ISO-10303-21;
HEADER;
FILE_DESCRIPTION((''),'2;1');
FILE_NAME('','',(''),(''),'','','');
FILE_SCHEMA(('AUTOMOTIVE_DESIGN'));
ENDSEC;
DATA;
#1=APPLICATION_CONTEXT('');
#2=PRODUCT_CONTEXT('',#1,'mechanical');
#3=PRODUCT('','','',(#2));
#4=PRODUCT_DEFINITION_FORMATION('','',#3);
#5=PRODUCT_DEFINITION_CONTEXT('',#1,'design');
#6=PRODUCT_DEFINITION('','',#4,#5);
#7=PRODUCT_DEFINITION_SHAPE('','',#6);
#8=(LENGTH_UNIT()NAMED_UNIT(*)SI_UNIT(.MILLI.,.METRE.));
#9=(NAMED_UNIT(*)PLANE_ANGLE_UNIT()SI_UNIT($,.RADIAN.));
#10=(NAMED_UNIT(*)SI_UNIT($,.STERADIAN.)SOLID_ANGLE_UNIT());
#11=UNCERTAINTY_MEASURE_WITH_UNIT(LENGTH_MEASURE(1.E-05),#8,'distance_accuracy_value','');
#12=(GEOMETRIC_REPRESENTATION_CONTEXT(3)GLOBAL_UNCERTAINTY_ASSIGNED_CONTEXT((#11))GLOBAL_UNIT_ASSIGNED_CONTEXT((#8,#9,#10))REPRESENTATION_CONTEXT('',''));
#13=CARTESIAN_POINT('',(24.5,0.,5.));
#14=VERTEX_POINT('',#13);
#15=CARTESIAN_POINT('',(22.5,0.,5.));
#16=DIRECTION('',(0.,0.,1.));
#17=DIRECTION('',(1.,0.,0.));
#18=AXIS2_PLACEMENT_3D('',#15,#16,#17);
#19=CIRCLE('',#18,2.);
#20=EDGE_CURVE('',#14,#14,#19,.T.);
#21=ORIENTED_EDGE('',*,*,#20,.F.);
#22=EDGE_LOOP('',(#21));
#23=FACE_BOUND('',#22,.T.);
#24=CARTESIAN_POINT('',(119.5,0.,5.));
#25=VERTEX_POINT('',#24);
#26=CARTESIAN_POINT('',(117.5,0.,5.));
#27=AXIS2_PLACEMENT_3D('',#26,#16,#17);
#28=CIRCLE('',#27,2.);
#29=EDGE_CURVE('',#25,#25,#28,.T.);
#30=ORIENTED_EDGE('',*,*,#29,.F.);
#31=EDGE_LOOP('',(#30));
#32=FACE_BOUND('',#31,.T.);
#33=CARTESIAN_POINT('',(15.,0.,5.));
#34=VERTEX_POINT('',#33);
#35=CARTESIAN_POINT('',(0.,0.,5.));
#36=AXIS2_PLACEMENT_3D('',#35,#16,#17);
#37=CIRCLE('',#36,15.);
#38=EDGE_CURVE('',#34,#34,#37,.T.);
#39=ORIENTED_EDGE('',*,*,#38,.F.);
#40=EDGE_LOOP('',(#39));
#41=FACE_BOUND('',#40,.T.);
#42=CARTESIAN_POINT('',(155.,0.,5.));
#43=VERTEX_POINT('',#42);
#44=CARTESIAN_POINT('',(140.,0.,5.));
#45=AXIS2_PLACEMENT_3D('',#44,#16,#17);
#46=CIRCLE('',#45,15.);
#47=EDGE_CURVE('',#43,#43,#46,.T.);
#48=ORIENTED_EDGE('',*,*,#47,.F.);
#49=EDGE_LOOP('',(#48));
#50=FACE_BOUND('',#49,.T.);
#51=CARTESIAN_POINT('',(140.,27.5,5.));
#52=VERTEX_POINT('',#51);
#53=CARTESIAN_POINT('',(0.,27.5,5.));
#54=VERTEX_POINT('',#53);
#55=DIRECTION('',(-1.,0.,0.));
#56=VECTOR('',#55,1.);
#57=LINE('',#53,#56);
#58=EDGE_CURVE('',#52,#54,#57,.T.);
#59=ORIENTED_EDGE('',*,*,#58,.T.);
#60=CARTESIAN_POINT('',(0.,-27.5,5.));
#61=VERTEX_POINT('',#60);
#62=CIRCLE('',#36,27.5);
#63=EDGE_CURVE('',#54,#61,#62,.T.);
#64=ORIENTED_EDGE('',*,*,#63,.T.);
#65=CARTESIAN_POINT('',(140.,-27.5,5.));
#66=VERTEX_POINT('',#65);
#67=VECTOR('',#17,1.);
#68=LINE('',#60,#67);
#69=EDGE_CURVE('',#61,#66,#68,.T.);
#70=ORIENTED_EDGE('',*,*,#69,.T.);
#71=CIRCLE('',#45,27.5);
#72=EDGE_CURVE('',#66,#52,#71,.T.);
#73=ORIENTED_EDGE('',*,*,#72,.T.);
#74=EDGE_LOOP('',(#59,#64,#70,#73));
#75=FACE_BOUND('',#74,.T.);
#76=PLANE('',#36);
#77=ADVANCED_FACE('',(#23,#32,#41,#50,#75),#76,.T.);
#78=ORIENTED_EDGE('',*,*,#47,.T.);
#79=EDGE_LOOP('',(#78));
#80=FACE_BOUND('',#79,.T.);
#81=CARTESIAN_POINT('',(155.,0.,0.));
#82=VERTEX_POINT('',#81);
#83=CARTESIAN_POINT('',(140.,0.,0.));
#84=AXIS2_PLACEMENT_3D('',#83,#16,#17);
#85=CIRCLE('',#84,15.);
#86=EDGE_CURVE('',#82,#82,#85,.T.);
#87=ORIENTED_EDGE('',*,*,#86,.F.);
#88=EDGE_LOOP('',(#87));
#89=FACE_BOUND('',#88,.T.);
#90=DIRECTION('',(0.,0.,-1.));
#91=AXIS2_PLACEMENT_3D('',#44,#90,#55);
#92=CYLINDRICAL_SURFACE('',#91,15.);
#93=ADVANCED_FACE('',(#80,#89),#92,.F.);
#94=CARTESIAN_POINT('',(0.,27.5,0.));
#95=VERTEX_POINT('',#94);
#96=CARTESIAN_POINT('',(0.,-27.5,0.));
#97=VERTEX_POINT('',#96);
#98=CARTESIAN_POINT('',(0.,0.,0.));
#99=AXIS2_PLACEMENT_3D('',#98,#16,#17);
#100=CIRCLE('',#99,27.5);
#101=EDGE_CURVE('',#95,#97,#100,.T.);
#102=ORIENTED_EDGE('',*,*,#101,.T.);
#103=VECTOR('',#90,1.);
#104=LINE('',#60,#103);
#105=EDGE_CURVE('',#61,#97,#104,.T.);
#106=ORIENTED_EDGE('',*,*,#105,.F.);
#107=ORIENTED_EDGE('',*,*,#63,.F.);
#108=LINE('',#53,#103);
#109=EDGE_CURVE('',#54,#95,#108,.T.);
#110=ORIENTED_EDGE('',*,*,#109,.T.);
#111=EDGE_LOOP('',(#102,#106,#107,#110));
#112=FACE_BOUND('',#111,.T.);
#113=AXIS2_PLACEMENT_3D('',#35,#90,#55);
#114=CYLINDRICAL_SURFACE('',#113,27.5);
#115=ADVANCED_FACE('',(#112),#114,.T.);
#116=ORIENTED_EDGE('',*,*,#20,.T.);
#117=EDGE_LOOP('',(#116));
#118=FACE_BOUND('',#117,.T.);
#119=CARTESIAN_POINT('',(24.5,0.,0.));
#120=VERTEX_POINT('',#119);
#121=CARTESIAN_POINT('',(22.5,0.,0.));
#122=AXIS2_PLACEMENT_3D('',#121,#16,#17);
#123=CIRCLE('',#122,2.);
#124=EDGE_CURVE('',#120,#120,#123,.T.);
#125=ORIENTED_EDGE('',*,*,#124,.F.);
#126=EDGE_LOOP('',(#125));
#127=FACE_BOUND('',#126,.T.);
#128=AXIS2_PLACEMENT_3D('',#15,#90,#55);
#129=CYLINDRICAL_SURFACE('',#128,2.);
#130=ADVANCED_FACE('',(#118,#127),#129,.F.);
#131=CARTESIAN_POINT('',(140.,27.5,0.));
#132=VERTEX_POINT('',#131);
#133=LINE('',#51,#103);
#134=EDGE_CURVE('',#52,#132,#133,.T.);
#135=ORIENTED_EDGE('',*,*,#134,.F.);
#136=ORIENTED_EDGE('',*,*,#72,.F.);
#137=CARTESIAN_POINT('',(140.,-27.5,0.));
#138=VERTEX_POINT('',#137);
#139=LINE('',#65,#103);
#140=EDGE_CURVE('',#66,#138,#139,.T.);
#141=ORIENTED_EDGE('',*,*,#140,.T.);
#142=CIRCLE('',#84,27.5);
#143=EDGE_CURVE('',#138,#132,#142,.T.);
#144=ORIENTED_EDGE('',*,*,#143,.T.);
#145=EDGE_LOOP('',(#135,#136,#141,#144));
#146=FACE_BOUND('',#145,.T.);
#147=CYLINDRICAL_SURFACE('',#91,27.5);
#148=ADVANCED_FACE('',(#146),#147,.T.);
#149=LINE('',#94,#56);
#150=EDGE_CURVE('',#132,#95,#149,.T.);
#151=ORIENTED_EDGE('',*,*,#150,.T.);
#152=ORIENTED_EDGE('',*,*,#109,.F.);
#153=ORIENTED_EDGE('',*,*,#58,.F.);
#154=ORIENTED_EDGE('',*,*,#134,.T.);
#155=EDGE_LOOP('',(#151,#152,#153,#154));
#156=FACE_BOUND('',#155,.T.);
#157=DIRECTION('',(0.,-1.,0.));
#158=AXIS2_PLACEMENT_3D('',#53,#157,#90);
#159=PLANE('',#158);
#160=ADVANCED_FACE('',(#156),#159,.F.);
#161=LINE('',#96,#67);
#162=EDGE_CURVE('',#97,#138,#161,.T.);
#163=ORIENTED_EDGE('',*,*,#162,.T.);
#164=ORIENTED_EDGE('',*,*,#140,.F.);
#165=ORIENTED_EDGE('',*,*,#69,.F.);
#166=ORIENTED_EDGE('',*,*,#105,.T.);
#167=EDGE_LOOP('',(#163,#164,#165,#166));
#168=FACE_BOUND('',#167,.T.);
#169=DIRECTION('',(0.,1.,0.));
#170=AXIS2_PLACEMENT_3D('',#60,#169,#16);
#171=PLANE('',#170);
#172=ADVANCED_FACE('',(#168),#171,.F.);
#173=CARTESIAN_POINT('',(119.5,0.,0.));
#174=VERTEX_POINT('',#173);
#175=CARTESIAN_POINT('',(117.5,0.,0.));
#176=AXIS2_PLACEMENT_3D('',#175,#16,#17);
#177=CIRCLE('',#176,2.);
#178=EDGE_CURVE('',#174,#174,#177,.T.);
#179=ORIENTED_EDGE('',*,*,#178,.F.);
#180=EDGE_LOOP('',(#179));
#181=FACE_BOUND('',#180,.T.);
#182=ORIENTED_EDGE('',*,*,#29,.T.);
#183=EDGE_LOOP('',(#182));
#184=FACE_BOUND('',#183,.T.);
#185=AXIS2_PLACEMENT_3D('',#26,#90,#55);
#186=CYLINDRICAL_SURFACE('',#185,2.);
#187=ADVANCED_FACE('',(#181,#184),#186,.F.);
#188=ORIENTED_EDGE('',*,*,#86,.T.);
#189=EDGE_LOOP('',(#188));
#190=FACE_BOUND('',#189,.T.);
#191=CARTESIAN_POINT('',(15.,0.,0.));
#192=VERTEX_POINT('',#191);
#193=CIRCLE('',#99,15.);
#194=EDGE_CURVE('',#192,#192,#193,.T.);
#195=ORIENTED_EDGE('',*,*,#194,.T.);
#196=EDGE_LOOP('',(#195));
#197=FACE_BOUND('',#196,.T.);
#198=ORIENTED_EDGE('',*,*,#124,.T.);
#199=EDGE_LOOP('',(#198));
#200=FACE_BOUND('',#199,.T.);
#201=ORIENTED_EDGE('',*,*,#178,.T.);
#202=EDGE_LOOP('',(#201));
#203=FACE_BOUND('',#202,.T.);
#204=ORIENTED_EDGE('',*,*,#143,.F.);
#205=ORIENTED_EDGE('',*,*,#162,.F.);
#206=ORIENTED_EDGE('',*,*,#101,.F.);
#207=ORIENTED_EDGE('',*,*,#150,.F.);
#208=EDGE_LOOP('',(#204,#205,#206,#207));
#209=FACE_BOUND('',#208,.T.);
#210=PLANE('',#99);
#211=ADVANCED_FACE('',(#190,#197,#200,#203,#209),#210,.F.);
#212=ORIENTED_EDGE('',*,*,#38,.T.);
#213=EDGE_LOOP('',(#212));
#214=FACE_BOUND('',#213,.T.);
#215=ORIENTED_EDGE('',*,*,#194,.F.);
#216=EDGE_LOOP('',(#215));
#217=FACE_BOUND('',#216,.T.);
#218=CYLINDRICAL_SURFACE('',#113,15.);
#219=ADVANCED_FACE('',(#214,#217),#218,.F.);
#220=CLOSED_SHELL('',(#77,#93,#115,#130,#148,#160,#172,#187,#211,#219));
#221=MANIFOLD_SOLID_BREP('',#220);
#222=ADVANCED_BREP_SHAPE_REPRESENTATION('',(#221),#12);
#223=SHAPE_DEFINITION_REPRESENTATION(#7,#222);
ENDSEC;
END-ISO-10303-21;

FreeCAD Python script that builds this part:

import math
import FreeCAD as App
import Part
import Sketcher
from FreeCAD import Vector
Q = App.Units.Quantity

doc = App.newDocument("Part")
params = doc.addObject("Spreadsheet::Sheet", "Params")
for row, (alias, value) in enumerate([
    ("sketch1_diameter", "30 mm"),
    ("sketch1_diameter2", "4 mm"),
    ("sketch1_radius", "27.5 mm"),
    ("sketch1_width", "140 mm"),
    ("pad1_length", "5 mm"),
], start=1):
    params.set(f"A{row}", alias)
    params.set(f"B{row}", "=" + value)
    params.setAlias(f"B{row}", alias)

body = doc.addObject("PartDesign::Body", "Body")

# Sketch on XY plane
sketch1 = doc.addObject("Sketcher::SketchObject", "Sketch")
body.addObject(sketch1)
sketch1.AttachmentSupport = (doc.XY_Plane, [""])
sketch1.MapMode = "FlatFace"
sketch1.addGeometry([
    Part.LineSegment(Vector(140, 27.5, 0), Vector(0, 27.5, 0)),  # 0
    Part.ArcOfCircle(Part.Circle(Vector(0, 0, 0), Vector(0, 0, 1), 27.5), math.radians(90), math.radians(270)),  # 1
    Part.LineSegment(Vector(0, -27.5, 0), Vector(140, -27.5, 0)),  # 2
    Part.ArcOfCircle(Part.Circle(Vector(140, 0, 0), Vector(0, 0, 1), 27.5), math.radians(-90), math.radians(90)),  # 3
    Part.Circle(Vector(140, 0, 0), Vector(0, 0, 1), 15),  # 4
    Part.Circle(Vector(117.5, 0, 0), Vector(0, 0, 1), 2),  # 5
    Part.Circle(Vector(22.5, 0, 0), Vector(0, 0, 1), 2),  # 6
    Part.Circle(Vector(0, 0, 0), Vector(0, 0, 1), 15),  # 7
], False)
sketch1.addConstraint([
    Sketcher.Constraint("Tangent", 0, 2, 1, 1),
    Sketcher.Constraint("Tangent", 1, 2, 2, 1),
    Sketcher.Constraint("Tangent", 2, 2, 3, 1),
    Sketcher.Constraint("Tangent", 3, 2, 0, 1),
    Sketcher.Constraint("Horizontal", 0),
    Sketcher.Constraint("Horizontal", 2),
    Sketcher.Constraint("Coincident", 1, 3, -1, 1),
    Sketcher.Constraint("Coincident", 7, 3, -1, 1),
    Sketcher.Constraint("Coincident", 4, 3, 3, 3),
    Sketcher.Constraint("Equal", 5, 6),
    Sketcher.Constraint("Equal", 4, 7),
    Sketcher.Constraint("PointOnObject", 5, 3, -1),
    Sketcher.Constraint("PointOnObject", 6, 3, -1),
    Sketcher.Constraint("Diameter", 4, Q("30 mm")),
    Sketcher.Constraint("Diameter", 5, Q("4 mm")),
    Sketcher.Constraint("Radius", 1, Q("27.5 mm")),
    Sketcher.Constraint("DistanceX", 0, 2, 0, 1, Q("140 mm")),
    Sketcher.Constraint("DistanceX", 6, 3, 5, 3, Q("95 mm")),
    Sketcher.Constraint("DistanceX", -1, 1, 5, 3, Q("117.5 mm")),
])
sketch1.setExpression("Constraints[13]", "Params.sketch1_diameter")
sketch1.setExpression("Constraints[14]", "Params.sketch1_diameter2")
sketch1.setExpression("Constraints[15]", "Params.sketch1_radius")
sketch1.setExpression("Constraints[16]", "Params.sketch1_width")
pad1 = doc.addObject("PartDesign::Pad", "Pad")
body.addObject(pad1)
pad1.Profile = sketch1
pad1.setExpression("Length", "Params.pad1_length")

doc.recompute()
